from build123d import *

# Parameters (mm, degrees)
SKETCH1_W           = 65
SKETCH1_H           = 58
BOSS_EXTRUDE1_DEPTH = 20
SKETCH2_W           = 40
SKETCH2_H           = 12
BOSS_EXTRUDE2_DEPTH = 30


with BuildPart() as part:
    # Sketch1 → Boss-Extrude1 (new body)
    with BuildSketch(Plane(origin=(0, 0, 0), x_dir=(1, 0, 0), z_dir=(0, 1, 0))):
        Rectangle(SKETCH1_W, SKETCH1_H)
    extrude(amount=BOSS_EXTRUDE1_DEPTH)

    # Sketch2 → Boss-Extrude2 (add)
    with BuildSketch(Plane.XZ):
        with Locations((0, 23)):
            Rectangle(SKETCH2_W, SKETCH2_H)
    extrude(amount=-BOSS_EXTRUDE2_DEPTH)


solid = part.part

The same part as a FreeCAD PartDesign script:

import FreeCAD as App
import Part
import Sketcher

doc = App.newDocument("Part")
body = doc.addObject("PartDesign::Body", "Body")

# Sketch on XZ plane
sketch1 = doc.addObject("Sketcher::SketchObject", "Sketch")
body.addObject(sketch1)
sketch1.AttachmentSupport = (doc.XZ_Plane, [""])
sketch1.MapMode = "FlatFace"
sketch1.addGeometry(Part.LineSegment(App.Vector(-32.5, -29, 0), App.Vector(-32.5, 29, 0)), False)
sketch1.addGeometry(Part.LineSegment(App.Vector(-32.5, 29, 0), App.Vector(32.5, 29, 0)), False)
sketch1.addGeometry(Part.LineSegment(App.Vector(32.5, 29, 0), App.Vector(32.5, -29, 0)), False)
sketch1.addGeometry(Part.LineSegment(App.Vector(32.5, -29, 0), App.Vector(-32.5, -29, 0)), False)
sketch1.addConstraint(Sketcher.Constraint("Coincident", 0, 2, 1, 1))
sketch1.addConstraint(Sketcher.Constraint("Coincident", 1, 2, 2, 1))
sketch1.addConstraint(Sketcher.Constraint("Coincident", 2, 2, 3, 1))
sketch1.addConstraint(Sketcher.Constraint("Coincident", 3, 2, 0, 1))
sketch1.addConstraint(Sketcher.Constraint("Vertical", 0))
sketch1.addConstraint(Sketcher.Constraint("Horizontal", 1))
sketch1.addConstraint(Sketcher.Constraint("Vertical", 2))
sketch1.addConstraint(Sketcher.Constraint("Horizontal", 3))
sketch1.addConstraint(Sketcher.Constraint("Symmetric", 0, 2, 2, 2, -1, 1))
sketch1.addConstraint(Sketcher.Constraint("DistanceX", 1, 1, 1, 2, 65.0))
sketch1.addConstraint(Sketcher.Constraint("DistanceY", 0, 1, 0, 2, 58.0))
pad1 = doc.addObject("PartDesign::Pad", "Pad")
body.addObject(pad1)
pad1.Profile = sketch1
pad1.Length = 20
pad1.Reversed = True

# Sketch on XZ plane
sketch2 = doc.addObject("Sketcher::SketchObject", "Sketch001")
body.addObject(sketch2)
sketch2.AttachmentSupport = (doc.XZ_Plane, [""])
sketch2.MapMode = "FlatFace"
sketch2.addGeometry(Part.LineSegment(App.Vector(-20, 29, 0), App.Vector(-20, 17, 0)), False)
sketch2.addGeometry(Part.LineSegment(App.Vector(-20, 17, 0), App.Vector(20, 17, 0)), False)
sketch2.addGeometry(Part.LineSegment(App.Vector(20, 17, 0), App.Vector(20, 29, 0)), False)
sketch2.addGeometry(Part.LineSegment(App.Vector(20, 29, 0), App.Vector(-20, 29, 0)), False)
sketch2.addConstraint(Sketcher.Constraint("Coincident", 0, 2, 1, 1))
sketch2.addConstraint(Sketcher.Constraint("Coincident", 1, 2, 2, 1))
sketch2.addConstraint(Sketcher.Constraint("Coincident", 2, 2, 3, 1))
sketch2.addConstraint(Sketcher.Constraint("Coincident", 3, 2, 0, 1))
sketch2.addConstraint(Sketcher.Constraint("Vertical", 0))
sketch2.addConstraint(Sketcher.Constraint("Horizontal", 1))
sketch2.addConstraint(Sketcher.Constraint("Vertical", 2))
sketch2.addConstraint(Sketcher.Constraint("Horizontal", 3))
sketch2.addConstraint(Sketcher.Constraint("DistanceX", 1, 1, 1, 2, 40.0))
sketch2.addConstraint(Sketcher.Constraint("DistanceY", 0, 2, 0, 1, 12.0))
sketch2.addConstraint(Sketcher.Constraint("DistanceX", 0, 2, -1, 1, 20.0))
sketch2.addConstraint(Sketcher.Constraint("DistanceY", -1, 1, 0, 2, 17.0))
pad2 = doc.addObject("PartDesign::Pad", "Pad001")
body.addObject(pad2)
pad2.Profile = sketch2
pad2.Length = 30
pad2.Reversed = True

doc.recompute()
